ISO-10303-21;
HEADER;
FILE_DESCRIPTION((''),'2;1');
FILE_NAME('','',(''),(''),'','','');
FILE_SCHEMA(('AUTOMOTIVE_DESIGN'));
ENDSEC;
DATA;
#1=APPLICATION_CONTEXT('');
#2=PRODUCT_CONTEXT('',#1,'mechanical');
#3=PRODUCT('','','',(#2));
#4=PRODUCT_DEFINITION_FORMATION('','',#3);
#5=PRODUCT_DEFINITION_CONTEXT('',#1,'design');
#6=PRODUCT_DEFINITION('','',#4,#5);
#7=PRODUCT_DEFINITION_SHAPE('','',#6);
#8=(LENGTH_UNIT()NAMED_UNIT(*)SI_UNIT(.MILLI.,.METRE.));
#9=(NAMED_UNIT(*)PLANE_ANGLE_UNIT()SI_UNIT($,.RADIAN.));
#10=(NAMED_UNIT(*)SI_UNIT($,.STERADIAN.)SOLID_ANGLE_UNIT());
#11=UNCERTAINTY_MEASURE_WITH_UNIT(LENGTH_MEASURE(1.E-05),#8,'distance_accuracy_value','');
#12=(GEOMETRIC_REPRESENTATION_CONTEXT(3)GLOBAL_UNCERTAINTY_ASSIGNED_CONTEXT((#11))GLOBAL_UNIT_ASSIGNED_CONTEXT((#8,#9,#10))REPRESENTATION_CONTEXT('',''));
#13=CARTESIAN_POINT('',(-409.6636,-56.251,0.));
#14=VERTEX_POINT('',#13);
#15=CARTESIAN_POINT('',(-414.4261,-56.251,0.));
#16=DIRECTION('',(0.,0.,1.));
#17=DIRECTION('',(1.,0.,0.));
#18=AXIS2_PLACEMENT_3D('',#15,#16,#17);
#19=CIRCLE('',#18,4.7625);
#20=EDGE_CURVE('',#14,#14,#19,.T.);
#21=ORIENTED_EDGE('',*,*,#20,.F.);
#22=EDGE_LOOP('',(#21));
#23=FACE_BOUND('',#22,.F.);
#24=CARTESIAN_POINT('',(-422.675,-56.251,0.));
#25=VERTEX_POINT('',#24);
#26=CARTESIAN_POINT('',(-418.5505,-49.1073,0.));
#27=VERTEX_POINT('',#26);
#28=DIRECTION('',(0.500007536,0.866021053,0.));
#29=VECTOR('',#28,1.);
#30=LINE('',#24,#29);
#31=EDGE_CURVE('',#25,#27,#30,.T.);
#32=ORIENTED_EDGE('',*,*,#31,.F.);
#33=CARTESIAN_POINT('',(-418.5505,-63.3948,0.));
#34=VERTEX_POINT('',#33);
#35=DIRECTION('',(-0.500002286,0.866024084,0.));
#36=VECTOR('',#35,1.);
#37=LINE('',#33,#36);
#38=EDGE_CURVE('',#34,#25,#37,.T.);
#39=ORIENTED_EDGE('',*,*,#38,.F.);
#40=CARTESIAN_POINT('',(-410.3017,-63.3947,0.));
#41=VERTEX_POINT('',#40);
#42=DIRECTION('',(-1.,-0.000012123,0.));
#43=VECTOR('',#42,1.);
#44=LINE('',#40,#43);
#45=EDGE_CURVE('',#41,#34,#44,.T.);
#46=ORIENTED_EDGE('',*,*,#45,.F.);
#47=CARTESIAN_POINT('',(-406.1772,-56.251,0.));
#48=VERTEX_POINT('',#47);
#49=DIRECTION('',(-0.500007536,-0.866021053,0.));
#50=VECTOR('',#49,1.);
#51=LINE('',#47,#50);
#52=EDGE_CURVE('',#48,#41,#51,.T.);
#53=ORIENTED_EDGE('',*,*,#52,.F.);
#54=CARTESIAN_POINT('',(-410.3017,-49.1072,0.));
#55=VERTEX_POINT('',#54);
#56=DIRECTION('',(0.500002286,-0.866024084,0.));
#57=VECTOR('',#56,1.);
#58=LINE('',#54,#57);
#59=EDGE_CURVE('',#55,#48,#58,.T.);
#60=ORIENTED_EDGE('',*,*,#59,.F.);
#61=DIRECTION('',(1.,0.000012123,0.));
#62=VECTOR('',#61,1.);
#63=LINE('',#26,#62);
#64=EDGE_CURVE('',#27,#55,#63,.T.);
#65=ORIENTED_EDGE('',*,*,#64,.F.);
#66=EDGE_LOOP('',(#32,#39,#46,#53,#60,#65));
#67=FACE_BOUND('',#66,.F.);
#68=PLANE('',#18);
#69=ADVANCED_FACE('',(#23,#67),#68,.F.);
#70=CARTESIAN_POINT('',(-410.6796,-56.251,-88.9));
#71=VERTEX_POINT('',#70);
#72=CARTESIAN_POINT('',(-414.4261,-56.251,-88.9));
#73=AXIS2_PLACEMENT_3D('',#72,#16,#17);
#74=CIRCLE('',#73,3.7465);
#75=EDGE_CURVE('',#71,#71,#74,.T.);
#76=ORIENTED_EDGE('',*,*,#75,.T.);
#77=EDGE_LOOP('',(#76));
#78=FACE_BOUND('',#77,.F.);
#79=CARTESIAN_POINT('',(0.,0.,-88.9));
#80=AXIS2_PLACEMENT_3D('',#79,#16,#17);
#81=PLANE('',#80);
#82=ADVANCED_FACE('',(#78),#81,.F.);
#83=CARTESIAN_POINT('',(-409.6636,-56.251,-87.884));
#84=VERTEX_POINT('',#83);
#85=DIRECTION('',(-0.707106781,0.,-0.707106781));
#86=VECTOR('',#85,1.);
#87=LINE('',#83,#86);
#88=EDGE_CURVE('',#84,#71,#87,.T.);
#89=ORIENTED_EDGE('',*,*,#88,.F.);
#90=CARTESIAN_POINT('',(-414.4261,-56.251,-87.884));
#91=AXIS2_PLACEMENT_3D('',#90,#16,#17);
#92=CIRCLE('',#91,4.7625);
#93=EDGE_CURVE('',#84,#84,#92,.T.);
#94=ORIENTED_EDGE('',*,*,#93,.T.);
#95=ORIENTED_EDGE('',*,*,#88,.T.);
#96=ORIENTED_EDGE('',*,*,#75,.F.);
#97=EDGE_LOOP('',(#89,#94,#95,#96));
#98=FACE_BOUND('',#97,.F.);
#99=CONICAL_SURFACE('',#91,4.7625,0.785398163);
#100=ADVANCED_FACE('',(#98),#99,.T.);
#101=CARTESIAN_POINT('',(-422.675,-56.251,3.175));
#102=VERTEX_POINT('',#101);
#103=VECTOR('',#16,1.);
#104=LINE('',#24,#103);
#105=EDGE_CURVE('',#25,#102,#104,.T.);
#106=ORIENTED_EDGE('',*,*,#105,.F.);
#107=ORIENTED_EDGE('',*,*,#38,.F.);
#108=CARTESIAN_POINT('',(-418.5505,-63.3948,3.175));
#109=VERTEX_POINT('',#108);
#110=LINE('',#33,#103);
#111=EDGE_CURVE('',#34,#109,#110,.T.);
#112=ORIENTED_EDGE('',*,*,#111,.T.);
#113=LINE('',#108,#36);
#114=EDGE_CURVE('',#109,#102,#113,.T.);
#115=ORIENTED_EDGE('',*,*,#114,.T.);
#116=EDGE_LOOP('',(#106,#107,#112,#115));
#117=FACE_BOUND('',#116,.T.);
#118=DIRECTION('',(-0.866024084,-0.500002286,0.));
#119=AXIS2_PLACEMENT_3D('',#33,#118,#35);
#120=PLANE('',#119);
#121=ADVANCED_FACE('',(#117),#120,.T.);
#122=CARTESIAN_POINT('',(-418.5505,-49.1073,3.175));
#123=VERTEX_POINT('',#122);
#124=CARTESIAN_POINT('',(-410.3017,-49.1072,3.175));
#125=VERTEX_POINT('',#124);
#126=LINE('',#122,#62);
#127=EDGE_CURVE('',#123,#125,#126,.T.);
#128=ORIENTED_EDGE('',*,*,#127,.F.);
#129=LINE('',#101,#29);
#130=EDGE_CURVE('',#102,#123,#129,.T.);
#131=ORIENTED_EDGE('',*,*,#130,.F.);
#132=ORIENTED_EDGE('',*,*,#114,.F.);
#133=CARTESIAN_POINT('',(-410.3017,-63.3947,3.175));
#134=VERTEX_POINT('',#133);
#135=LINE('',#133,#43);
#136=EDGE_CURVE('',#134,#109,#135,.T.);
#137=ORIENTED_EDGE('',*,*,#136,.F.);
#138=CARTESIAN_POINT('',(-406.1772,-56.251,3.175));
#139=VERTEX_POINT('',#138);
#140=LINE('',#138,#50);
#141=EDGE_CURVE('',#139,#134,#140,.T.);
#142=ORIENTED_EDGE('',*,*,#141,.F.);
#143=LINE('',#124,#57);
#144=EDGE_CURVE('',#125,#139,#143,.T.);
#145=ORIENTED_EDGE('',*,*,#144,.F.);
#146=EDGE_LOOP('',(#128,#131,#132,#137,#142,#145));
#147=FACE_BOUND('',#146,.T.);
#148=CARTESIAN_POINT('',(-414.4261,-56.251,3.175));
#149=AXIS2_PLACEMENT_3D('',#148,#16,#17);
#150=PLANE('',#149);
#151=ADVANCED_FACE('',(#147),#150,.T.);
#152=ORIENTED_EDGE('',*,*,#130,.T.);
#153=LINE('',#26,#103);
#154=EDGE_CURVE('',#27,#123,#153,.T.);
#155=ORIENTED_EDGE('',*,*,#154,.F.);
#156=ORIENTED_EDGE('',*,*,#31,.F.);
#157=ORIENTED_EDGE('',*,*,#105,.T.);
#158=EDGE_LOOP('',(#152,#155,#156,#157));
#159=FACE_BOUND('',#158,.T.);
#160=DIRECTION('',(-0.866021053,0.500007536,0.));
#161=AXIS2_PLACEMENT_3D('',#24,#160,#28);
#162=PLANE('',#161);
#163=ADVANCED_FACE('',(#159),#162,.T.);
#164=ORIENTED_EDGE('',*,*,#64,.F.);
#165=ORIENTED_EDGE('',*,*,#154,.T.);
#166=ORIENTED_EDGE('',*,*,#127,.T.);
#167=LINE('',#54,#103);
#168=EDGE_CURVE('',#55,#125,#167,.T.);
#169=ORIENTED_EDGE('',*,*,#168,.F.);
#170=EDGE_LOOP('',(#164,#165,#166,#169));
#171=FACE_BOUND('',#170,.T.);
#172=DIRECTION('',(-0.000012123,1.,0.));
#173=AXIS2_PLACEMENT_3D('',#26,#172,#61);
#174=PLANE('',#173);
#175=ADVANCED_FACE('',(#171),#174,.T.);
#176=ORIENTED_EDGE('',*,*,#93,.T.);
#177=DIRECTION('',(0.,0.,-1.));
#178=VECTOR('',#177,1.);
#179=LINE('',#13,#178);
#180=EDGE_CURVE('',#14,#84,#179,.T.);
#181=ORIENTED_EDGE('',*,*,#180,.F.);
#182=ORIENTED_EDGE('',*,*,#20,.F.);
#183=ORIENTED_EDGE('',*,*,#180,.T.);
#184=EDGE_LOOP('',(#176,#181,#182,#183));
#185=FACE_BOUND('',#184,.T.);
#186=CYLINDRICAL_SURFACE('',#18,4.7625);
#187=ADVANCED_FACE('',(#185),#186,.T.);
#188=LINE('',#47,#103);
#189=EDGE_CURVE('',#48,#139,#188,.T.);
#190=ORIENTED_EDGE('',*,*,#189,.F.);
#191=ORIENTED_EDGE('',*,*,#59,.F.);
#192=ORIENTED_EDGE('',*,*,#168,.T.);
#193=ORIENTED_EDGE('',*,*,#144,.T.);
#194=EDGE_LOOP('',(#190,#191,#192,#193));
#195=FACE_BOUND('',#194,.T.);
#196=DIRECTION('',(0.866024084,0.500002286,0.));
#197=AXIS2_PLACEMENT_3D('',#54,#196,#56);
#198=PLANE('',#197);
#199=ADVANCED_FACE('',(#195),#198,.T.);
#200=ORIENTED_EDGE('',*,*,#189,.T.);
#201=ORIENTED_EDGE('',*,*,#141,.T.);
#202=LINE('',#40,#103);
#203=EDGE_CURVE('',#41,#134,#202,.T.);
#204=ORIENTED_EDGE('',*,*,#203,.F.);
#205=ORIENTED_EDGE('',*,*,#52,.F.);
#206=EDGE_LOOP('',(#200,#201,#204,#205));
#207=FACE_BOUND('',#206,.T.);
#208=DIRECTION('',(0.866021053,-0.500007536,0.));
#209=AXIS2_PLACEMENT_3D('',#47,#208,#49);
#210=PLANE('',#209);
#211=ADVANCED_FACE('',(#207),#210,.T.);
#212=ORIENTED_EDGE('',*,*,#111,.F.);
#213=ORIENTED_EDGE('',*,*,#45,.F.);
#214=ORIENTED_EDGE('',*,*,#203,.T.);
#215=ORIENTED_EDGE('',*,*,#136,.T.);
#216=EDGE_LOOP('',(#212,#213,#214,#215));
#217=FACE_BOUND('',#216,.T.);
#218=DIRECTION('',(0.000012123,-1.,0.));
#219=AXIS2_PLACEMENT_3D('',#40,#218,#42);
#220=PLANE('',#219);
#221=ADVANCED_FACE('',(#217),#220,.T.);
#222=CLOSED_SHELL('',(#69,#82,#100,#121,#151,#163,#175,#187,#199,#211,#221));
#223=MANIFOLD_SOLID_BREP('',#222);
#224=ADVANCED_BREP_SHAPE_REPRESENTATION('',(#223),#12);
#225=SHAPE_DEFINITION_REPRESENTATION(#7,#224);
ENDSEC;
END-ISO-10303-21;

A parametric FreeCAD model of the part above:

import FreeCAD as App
import Part
import Sketcher
Q = App.Units.Quantity


def edges_at(feature, points):
    """Names of the edges that pass closest to the given points."""
    edges = feature.Shape.Edges
    near = lambda p: min(range(len(edges)), key=lambda i: edges[i].distToShape(Part.Vertex(*p))[0])
    return sorted({f"Edge{near(p) + 1}" for p in points})


def add_polygon(sketch, points):
    """Adds a closed chain of lines whose ends are joined by coincident constraints."""
    first, n = sketch.GeometryCount, len(points)
    for a, b in zip(points, points[1:] + points[:1]):
        sketch.addGeometry(Part.LineSegment(App.Vector(*a, 0), App.Vector(*b, 0)), False)
    for i in range(n):
        sketch.addConstraint(Sketcher.Constraint("Coincident", first + i, 2, first + (i + 1) % n, 1))

doc = App.newDocument("Part")
body = doc.addObject("PartDesign::Body", "Body")

# Sketch on XY plane
sketch1 = body.newObject("Sketcher::SketchObject", "Sketch")
sketch1.AttachmentSupport = (doc.getObject("XY_Plane"), [""])
sketch1.MapMode = "FlatFace"
sketch1.addGeometry(Part.Circle(App.Vector(-414.4261, -56.251, 0), App.Vector(0, 0, 1), 4.7625), False)
sketch1.addConstraint(Sketcher.Constraint("Diameter", 0, Q("0.375 in")))
sketch1.addConstraint(Sketcher.Constraint("DistanceX", 0, 3, -1, 1, Q("16.316 in")))
sketch1.addConstraint(Sketcher.Constraint("DistanceY", 0, 3, -1, 1, Q("2.2146 in")))
pad1 = body.newObject("PartDesign::Pad", "Pad")
pad1.Profile = sketch1
pad1.Length = Q("3.5 in")
pad1.Reversed = True

# Sketch on XY plane
sketch2 = body.newObject("Sketcher::SketchObject", "Sketch001")
sketch2.AttachmentSupport = (doc.getObject("XY_Plane"), [""])
sketch2.MapMode = "FlatFace"
add_polygon(sketch2, [(-418.5505, -49.1073), (-422.675, -56.251), (-418.5505, -63.3948), (-410.3017, -63.3947), (-406.1772, -56.251), (-410.3017, -49.1072)])  # lines 0-5
sketch2.addConstraint(Sketcher.Constraint("Horizontal", 2))
sketch2.addConstraint(Sketcher.Constraint("Horizontal", 5))
sketch2.addConstraint(Sketcher.Constraint("Parallel", 0, 3))
sketch2.addConstraint(Sketcher.Constraint("Parallel", 1, 4))
sketch2.addConstraint(Sketcher.Constraint("Horizontal", 0, 2, 3, 2))
sketch2.addConstraint(Sketcher.Constraint("Vertical", 2, 2, 4, 2))
sketch2.addConstraint(Sketcher.Constraint("Vertical", 1, 2, 5, 2))
sketch2.addConstraint(Sketcher.Constraint("Angle", 0, Q("-120.0005 deg")))
sketch2.addConstraint(Sketcher.Constraint("DistanceY", 2, 2, 4, 2, Q("0.5625 in")))
sketch2.addConstraint(Sketcher.Constraint("DistanceX", 2, 1, 2, 2, Q("8.2488 mm")))
sketch2.addConstraint(Sketcher.Constraint("DistanceY", 0, 2, -1, 1, Q("2.2146 in")))
sketch2.addConstraint(Sketcher.Constraint("DistanceX", 2, 2, -1, 1, Q("16.1536 in")))
pad2 = body.newObject("PartDesign::Pad", "Pad001")
pad2.Profile = sketch2
pad2.Length = Q("0.125 in")
doc.recompute()

chamfer = body.newObject("PartDesign::Chamfer", "Chamfer")
chamfer.Base = (pad2, edges_at(pad2, [(-419.189, -56.251, -88.9)]))
chamfer.Size = Q("0.04 in")

doc.recompute()
